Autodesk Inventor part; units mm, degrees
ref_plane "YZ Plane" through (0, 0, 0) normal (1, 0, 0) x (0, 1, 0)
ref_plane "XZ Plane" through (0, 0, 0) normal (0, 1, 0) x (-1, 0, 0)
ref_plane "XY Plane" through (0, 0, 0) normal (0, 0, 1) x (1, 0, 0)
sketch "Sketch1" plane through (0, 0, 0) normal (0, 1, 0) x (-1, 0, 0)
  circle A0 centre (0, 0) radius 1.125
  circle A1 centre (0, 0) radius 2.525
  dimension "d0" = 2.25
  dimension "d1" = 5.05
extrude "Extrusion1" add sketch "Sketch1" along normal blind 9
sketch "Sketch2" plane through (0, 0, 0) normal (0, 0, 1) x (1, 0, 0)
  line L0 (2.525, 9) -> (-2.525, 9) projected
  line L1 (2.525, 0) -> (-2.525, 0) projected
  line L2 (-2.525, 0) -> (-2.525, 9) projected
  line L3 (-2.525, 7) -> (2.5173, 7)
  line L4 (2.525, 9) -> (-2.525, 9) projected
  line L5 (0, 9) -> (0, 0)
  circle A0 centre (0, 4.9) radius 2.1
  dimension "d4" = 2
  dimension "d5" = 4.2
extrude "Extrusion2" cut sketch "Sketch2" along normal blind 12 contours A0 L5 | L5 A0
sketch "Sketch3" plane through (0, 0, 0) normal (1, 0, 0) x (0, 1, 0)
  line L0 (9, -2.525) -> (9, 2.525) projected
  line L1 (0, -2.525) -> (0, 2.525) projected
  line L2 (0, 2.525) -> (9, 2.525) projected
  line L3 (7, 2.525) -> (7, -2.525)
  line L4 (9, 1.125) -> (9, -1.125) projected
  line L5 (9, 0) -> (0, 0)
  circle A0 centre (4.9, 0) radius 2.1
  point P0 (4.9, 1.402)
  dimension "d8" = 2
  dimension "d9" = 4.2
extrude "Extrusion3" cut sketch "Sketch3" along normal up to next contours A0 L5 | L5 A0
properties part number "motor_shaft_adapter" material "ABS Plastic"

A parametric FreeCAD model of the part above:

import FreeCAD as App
import Part
import Sketcher

doc = App.newDocument("Part")
body = doc.addObject("PartDesign::Body", "Body")

# Sketch on XZ plane
sketch1 = body.newObject("Sketcher::SketchObject", "Sketch")
sketch1.AttachmentSupport = (doc.getObject("XZ_Plane"), [""])
sketch1.MapMode = "FlatFace"
sketch1.addGeometry(Part.Circle(App.Vector(0, 0, 0), App.Vector(0, 0, 1), 2.5), False)
sketch1.addGeometry(Part.Circle(App.Vector(0, 0, 0), App.Vector(0, 0, 1), 1.1), False)
sketch1.addConstraint(Sketcher.Constraint("Coincident", 0, 3, -1, 1))
sketch1.addConstraint(Sketcher.Constraint("Coincident", 1, 3, -1, 1))
sketch1.addConstraint(Sketcher.Constraint("Diameter", 0, 5.05))
sketch1.addConstraint(Sketcher.Constraint("Diameter", 1, 2.25))
pad1 = body.newObject("PartDesign::Pad", "Pad")
pad1.Profile = sketch1
pad1.Length = 9
pad1.Reversed = True

# Sketch on XY plane
sketch2 = body.newObject("Sketcher::SketchObject", "Sketch001")
sketch2.AttachmentSupport = (doc.getObject("XY_Plane"), [""])
sketch2.MapMode = "FlatFace"
sketch2.addGeometry(Part.Circle(App.Vector(0, 4.9, 0), App.Vector(0, 0, 1), 2.1), False)
sketch2.addConstraint(Sketcher.Constraint("PointOnObject", 0, 3, -2))
sketch2.addConstraint(Sketcher.Constraint("Diameter", 0, 4.2))
sketch2.addConstraint(Sketcher.Constraint("DistanceY", -1, 1, 0, 3, 4.9))
pocket1 = body.newObject("PartDesign::Pocket", "Pocket")
pocket1.Profile = sketch2
pocket1.Length = 12
pocket1.Reversed = True

# Sketch on YZ plane
sketch3 = body.newObject("Sketcher::SketchObject", "Sketch002")
sketch3.AttachmentSupport = (doc.getObject("YZ_Plane"), [""])
sketch3.MapMode = "FlatFace"
sketch3.addGeometry(Part.Circle(App.Vector(4.9, 0, 0), App.Vector(0, 0, 1), 2.1), False)
sketch3.addConstraint(Sketcher.Constraint("PointOnObject", 0, 3, -1))
sketch3.addConstraint(Sketcher.Constraint("Diameter", 0, 4.2))
sketch3.addConstraint(Sketcher.Constraint("DistanceX", -1, 1, 0, 3, 4.9))
pocket2 = body.newObject("PartDesign::Pocket", "Pocket001")
pocket2.Profile = sketch3
pocket2.Length = 2.525
pocket2.Reversed = True

doc.recompute()
